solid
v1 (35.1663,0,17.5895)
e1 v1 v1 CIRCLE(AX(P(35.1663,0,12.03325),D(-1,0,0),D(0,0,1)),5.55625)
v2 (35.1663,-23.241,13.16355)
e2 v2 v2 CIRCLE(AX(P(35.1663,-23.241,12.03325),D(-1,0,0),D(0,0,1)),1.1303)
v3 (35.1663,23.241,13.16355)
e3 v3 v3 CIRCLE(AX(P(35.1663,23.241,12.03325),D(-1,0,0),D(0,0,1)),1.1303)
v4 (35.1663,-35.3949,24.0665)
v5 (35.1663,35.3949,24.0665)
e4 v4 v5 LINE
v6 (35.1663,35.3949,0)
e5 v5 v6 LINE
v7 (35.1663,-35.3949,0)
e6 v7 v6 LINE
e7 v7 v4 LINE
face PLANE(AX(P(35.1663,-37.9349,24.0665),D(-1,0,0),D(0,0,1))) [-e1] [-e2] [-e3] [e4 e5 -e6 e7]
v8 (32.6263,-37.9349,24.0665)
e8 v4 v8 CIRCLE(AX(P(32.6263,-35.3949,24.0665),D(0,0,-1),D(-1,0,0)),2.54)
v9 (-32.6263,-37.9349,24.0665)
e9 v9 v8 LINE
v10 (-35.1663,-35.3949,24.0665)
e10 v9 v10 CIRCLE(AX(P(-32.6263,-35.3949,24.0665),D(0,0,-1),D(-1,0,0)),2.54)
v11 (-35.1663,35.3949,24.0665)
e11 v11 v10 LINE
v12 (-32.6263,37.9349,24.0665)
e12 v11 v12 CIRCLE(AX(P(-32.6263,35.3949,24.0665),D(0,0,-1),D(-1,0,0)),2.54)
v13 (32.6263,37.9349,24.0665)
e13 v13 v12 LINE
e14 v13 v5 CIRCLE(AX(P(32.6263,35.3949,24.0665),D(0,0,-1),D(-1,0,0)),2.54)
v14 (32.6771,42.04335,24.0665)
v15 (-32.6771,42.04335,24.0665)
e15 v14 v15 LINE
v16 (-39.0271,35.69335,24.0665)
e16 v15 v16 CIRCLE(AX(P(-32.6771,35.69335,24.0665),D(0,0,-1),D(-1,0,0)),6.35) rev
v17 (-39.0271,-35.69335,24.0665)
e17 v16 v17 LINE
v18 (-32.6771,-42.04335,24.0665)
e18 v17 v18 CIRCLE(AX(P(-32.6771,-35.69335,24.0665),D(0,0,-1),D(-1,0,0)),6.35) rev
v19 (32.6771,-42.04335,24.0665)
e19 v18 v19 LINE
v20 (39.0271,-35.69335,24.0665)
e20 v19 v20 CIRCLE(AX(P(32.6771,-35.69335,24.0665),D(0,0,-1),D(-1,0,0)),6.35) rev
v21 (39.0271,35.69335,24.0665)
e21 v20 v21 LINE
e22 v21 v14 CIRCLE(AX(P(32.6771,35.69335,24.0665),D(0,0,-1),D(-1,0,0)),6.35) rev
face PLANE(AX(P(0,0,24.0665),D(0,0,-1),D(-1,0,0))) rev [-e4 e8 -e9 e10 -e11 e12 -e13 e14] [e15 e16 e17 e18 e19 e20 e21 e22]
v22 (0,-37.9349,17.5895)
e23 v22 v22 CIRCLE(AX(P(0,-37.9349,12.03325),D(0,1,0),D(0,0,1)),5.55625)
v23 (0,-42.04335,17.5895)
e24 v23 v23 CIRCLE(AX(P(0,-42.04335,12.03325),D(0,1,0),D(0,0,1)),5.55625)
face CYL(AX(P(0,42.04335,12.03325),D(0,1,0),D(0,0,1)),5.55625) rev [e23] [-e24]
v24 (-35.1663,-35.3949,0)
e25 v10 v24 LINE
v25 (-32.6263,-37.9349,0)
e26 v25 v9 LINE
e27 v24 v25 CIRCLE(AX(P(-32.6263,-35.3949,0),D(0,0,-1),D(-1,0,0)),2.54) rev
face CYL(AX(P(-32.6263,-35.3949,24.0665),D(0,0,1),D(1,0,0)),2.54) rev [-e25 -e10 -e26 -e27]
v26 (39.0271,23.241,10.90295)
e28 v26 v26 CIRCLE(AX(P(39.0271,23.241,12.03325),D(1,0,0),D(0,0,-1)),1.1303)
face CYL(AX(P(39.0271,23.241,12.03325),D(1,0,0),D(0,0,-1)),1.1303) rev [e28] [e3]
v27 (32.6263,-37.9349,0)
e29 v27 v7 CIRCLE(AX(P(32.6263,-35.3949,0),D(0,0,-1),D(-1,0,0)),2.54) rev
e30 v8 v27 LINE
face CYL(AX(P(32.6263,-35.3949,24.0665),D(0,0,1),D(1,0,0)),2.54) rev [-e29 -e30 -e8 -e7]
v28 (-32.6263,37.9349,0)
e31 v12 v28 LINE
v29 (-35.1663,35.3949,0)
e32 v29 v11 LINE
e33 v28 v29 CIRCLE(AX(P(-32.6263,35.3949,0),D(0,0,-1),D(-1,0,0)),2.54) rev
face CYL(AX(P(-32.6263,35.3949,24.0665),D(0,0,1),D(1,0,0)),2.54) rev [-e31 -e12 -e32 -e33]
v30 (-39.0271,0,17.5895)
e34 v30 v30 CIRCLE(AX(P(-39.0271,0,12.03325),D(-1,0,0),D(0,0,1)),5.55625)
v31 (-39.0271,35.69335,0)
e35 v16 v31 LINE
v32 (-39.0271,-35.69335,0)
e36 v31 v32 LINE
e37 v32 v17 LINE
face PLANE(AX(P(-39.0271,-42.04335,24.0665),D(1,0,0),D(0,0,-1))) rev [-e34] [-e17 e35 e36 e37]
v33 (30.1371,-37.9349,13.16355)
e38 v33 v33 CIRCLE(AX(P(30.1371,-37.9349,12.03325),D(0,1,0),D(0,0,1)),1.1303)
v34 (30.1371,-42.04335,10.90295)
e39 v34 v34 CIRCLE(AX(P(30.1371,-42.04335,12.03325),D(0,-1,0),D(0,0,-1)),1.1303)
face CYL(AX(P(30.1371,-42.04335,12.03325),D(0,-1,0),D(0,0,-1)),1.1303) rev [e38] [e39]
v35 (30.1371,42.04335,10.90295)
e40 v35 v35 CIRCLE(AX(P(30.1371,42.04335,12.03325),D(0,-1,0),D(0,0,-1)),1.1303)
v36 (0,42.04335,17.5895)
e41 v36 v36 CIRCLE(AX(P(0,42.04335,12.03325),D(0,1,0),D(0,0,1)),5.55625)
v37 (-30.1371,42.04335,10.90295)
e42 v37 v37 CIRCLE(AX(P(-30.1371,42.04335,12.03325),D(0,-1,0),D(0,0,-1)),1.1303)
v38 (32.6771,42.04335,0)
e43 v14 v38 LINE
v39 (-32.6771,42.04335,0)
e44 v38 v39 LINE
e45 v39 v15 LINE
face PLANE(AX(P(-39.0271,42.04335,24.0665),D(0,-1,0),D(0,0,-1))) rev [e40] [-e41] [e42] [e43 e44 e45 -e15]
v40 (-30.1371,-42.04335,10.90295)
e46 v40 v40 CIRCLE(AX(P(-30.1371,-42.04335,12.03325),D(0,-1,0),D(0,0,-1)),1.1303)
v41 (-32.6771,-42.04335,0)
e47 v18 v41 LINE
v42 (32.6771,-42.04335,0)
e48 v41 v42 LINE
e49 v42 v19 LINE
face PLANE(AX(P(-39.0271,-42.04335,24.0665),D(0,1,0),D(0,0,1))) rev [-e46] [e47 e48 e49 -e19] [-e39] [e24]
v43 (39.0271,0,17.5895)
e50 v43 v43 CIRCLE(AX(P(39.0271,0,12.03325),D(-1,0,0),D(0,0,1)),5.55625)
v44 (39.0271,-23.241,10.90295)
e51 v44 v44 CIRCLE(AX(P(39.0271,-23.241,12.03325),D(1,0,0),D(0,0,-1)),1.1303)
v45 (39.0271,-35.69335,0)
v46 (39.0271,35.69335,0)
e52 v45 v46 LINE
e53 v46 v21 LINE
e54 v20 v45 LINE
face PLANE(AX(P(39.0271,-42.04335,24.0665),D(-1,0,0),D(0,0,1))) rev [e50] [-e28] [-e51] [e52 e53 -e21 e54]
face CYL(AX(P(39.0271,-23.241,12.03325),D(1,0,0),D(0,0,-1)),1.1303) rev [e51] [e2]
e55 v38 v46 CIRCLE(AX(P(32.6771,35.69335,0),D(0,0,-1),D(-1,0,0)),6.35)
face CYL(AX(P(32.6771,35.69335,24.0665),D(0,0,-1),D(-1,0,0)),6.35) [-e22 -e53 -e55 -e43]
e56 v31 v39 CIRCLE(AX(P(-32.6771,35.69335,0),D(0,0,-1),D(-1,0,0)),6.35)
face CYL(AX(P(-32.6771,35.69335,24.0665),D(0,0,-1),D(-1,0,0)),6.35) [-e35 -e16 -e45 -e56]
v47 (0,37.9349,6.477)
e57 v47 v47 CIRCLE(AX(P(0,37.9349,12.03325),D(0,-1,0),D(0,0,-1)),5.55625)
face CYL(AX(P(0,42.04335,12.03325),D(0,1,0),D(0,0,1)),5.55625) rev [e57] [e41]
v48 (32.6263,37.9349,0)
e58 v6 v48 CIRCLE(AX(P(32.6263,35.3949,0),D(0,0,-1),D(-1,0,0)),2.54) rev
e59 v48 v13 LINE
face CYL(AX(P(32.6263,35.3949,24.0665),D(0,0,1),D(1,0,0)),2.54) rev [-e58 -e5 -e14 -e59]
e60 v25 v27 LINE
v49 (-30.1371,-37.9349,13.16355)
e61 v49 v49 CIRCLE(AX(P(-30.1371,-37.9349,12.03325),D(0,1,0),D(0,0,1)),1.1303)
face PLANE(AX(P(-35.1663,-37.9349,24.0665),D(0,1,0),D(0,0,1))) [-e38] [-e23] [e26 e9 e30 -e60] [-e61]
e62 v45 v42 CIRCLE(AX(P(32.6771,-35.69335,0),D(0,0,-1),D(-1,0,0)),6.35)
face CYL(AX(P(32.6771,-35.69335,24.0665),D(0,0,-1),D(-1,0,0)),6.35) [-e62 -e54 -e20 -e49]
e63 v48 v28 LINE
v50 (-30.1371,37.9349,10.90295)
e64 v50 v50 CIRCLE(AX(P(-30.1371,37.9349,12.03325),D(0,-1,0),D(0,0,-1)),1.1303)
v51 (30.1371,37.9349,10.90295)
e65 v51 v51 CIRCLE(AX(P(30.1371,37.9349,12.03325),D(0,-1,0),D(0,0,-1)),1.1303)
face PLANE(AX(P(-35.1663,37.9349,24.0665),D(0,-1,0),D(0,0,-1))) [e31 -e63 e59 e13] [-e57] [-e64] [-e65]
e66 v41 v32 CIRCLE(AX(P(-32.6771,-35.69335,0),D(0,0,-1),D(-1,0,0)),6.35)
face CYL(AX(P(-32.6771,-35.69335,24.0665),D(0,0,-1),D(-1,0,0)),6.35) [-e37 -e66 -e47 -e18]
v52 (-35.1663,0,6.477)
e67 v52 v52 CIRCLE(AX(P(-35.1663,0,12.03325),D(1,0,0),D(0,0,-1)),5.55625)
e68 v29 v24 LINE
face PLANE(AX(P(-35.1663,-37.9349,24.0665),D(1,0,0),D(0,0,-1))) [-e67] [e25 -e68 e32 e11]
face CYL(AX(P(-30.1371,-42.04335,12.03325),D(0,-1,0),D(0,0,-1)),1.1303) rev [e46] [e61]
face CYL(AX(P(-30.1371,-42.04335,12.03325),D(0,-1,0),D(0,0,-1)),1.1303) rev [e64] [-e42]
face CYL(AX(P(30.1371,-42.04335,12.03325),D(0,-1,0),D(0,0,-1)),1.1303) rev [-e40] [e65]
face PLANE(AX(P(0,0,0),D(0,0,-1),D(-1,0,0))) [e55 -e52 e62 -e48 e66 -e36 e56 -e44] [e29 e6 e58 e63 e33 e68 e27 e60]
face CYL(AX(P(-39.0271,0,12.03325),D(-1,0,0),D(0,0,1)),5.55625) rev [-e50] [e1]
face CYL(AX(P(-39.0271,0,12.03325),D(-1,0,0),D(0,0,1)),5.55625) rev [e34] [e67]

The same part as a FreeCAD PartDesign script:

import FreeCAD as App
import Part
import Sketcher
from FreeCAD import Vector
Q = App.Units.Quantity


def edges_at(feature, points):
    """Names of the edges that pass closest to the given points."""
    edges = feature.Shape.Edges
    near = lambda p: min(range(len(edges)), key=lambda i: edges[i].distToShape(Part.Vertex(*p))[0])
    return sorted({f"Edge{near(p) + 1}" for p in points})


def add_polygon(sketch, points):
    """Adds a closed chain of lines whose ends are joined by coincident constraints."""
    first, n = sketch.GeometryCount, len(points)
    for a, b in zip(points, points[1:] + points[:1]):
        sketch.addGeometry(Part.LineSegment(App.Vector(*a, 0), App.Vector(*b, 0)), False)
    for i in range(n):
        sketch.addConstraint(Sketcher.Constraint("Coincident", first + i, 2, first + (i + 1) % n, 1))

doc = App.newDocument("Part")
body = doc.addObject("PartDesign::Body", "Body")

# Sketch on XY plane
sketch1 = doc.addObject("Sketcher::SketchObject", "Sketch")
body.addObject(sketch1)
sketch1.AttachmentSupport = (doc.XY_Plane, [""])
sketch1.MapMode = "FlatFace"
add_polygon(sketch1, [(-39, 42), (-39, -42), (39, -42), (39, 42)])  # lines 0-3
add_polygon(sketch1, [(35, -38), (-35, -38), (-35, 38), (35, 38)])  # lines 4-7
sketch1.addConstraint([
    Sketcher.Constraint("Vertical", 0),
    Sketcher.Constraint("Horizontal", 1),
    Sketcher.Constraint("Vertical", 2),
    Sketcher.Constraint("Horizontal", 3),
    Sketcher.Constraint("Horizontal", 4),
    Sketcher.Constraint("Vertical", 5),
    Sketcher.Constraint("Horizontal", 6),
    Sketcher.Constraint("Vertical", 7),
    Sketcher.Constraint("Symmetric", 0, 2, 2, 2, -1, 1),
    Sketcher.Constraint("Symmetric", 4, 2, 6, 2, -1, 1),
    Sketcher.Constraint("DistanceX", 1, 1, 1, 2, Q("3.073 in")),
    Sketcher.Constraint("DistanceX", 4, 2, 4, 1, Q("2.769 in")),
    Sketcher.Constraint("DistanceY", 5, 1, 5, 2, Q("2.987 in")),
    Sketcher.Constraint("DistanceY", 0, 2, 0, 1, Q("3.3105 in")),
])
pad1 = doc.addObject("PartDesign::Pad", "Pad")
body.addObject(pad1)
pad1.Profile = sketch1
pad1.Length = Q("0.9475 in")

# Sketch on YZ plane
sketch2 = doc.addObject("Sketcher::SketchObject", "Sketch001")
body.addObject(sketch2)
sketch2.AttachmentSupport = (doc.YZ_Plane, [""])
sketch2.MapMode = "FlatFace"
sketch2.AttachmentOffset = App.Placement(Vector(0, 0, -1.5365 * 25.4), App.Rotation())
sketch2.addGeometry(Part.Circle(Vector(0, 12, 0), Vector(0, 0, 1), 6), False)
sketch2.addConstraint([
    Sketcher.Constraint("PointOnObject", 0, 3, -2),
    Sketcher.Constraint("Diameter", 0, Q("0.4375 in")),
    Sketcher.Constraint("DistanceY", -1, 1, 0, 3, Q("12.03325 mm")),
])
doc.recompute()
hole = doc.addObject("PartDesign::Hole", "Hole")
body.addObject(hole)
hole.Profile = sketch2
hole.ThreadType = "None"
hole.Diameter = Q("0.4375 in")
hole.DepthType = "ThroughAll"
hole.Reversed = True

# Sketch on XZ plane
sketch3 = doc.addObject("Sketcher::SketchObject", "Sketch002")
body.addObject(sketch3)
sketch3.AttachmentSupport = (doc.XZ_Plane, [""])
sketch3.MapMode = "FlatFace"
sketch3.AttachmentOffset = App.Placement(Vector(0, 0, -42.04335), App.Rotation())
sketch3.addGeometry(Part.Circle(Vector(0, 12, 0), Vector(0, 0, 1), 6), False)
sketch3.addConstraint([
    Sketcher.Constraint("PointOnObject", 0, 3, -2),
    Sketcher.Constraint("Diameter", 0, Q("0.4375 in")),
    Sketcher.Constraint("DistanceY", -1, 1, 0, 3, Q("12.03325 mm")),
])
doc.recompute()
hole2 = doc.addObject("PartDesign::Hole", "Hole001")
body.addObject(hole2)
hole2.Profile = sketch3
hole2.ThreadType = "None"
hole2.Diameter = Q("0.4375 in")
hole2.DepthType = "ThroughAll"
hole2.Reversed = True
doc.recompute()

fillet = doc.addObject("PartDesign::Fillet", "Fillet")
body.addObject(fillet)
fillet.Base = (hole2, edges_at(hole2, [
    (39.027, -42.043, 12.033),
    (-39.027, -42.043, 12.033),
    (-39.027, 42.043, 12.033),
    (39.027, 42.043, 12.033),
]))
fillet.Radius = Q("0.25 in")
doc.recompute()

fillet2 = doc.addObject("PartDesign::Fillet", "Fillet001")
body.addObject(fillet2)
fillet2.Base = (fillet, edges_at(fillet, [
    (35.166, -37.935, 12.033),
    (35.166, 37.935, 12.033),
    (-35.166, 37.935, 12.033),
    (-35.166, -37.935, 12.033),
]))
fillet2.Radius = Q("0.1 in")

# Sketch on YZ plane
sketch4 = doc.addObject("Sketcher::SketchObject", "Sketch003")
body.addObject(sketch4)
sketch4.AttachmentSupport = (doc.YZ_Plane, [""])
sketch4.MapMode = "FlatFace"
sketch4.AttachmentOffset = App.Placement(Vector(0, 0, 1.5365 * 25.4), App.Rotation())
sketch4.addGeometry([
    Part.Circle(Vector(23.2, 12, 0), Vector(0, 0, 1), 1.1),
    Part.Circle(Vector(-23.2, 12, 0), Vector(0, 0, 1), 1.1),
], False)
sketch4.addConstraint([
    Sketcher.Constraint("Equal", 0, 1),
    Sketcher.Constraint("Symmetric", 0, 3, 1, 3, -2),
    Sketcher.Constraint("Diameter", 0, Q("0.089 in")),
    Sketcher.Constraint("DistanceX", 1, 3, 0, 3, Q("1.83 in")),
    Sketcher.Constraint("DistanceY", -1, 1, 0, 3, Q("12.03325 mm")),
])
doc.recompute()
hole3 = doc.addObject("PartDesign::Hole", "Hole002")
body.addObject(hole3)
hole3.Profile = sketch4
hole3.ThreadType = "None"
hole3.Diameter = Q("0.089 in")
hole3.DepthType = "Dimension"
hole3.Depth = Q("0.152 in")
hole3.DrillPoint = "Flat"

# Sketch on XZ plane
sketch5 = doc.addObject("Sketcher::SketchObject", "Sketch004")
body.addObject(sketch5)
sketch5.AttachmentSupport = (doc.XZ_Plane, [""])
sketch5.MapMode = "FlatFace"
sketch5.AttachmentOffset = App.Placement(Vector(0, 0, 42.04335), App.Rotation())
sketch5.addGeometry([
    Part.Circle(Vector(30.1, 12, 0), Vector(0, 0, 1), 1.1),
    Part.Circle(Vector(-30.1, 12, 0), Vector(0, 0, 1), 1.1),
], False)
sketch5.addConstraint([
    Sketcher.Constraint("Equal", 0, 1),
    Sketcher.Constraint("Symmetric", 0, 3, 1, 3, -2),
    Sketcher.Constraint("Diameter", 0, Q("0.089 in")),
    Sketcher.Constraint("DistanceX", 1, 3, 0, 3, Q("2.373 in")),
    Sketcher.Constraint("DistanceY", -1, 1, 0, 3, Q("12.03325 mm")),
])
doc.recompute()
hole4 = doc.addObject("PartDesign::Hole", "Hole003")
body.addObject(hole4)
hole4.Profile = sketch5
hole4.ThreadType = "None"
hole4.Diameter = Q("0.089 in")
hole4.DepthType = "ThroughAll"

doc.recompute()
